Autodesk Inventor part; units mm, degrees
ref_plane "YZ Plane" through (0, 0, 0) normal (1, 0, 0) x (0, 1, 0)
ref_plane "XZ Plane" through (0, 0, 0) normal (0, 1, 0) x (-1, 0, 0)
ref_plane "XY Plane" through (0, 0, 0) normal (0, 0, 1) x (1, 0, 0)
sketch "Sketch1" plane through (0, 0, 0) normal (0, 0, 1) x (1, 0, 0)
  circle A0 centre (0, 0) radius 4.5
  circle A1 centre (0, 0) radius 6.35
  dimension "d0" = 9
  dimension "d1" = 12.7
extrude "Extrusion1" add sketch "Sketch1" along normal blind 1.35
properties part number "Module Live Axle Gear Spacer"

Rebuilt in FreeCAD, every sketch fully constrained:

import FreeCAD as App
import Part
import Sketcher
from FreeCAD import Vector

doc = App.newDocument("Part")
body = doc.addObject("PartDesign::Body", "Body")

# Sketch on XY plane
sketch1 = body.newObject("Sketcher::SketchObject", "Sketch")
sketch1.AttachmentSupport = (doc.getObject("XY_Plane"), [""])
sketch1.MapMode = "FlatFace"
sketch1.addGeometry([
    Part.Circle(Vector(0, 0, 0), Vector(0, 0, 1), 6.3),
    Part.Circle(Vector(0, 0, 0), Vector(0, 0, 1), 4.5),
], False)
sketch1.addConstraint([
    Sketcher.Constraint("Coincident", 0, 3, -1, 1),
    Sketcher.Constraint("Coincident", 1, 3, -1, 1),
    Sketcher.Constraint("Diameter", 1, 9.0),
    Sketcher.Constraint("Diameter", 0, 12.7),
])
pad1 = body.newObject("PartDesign::Pad", "Pad")
pad1.Profile = sketch1
pad1.Length = 1.35

doc.recompute()
